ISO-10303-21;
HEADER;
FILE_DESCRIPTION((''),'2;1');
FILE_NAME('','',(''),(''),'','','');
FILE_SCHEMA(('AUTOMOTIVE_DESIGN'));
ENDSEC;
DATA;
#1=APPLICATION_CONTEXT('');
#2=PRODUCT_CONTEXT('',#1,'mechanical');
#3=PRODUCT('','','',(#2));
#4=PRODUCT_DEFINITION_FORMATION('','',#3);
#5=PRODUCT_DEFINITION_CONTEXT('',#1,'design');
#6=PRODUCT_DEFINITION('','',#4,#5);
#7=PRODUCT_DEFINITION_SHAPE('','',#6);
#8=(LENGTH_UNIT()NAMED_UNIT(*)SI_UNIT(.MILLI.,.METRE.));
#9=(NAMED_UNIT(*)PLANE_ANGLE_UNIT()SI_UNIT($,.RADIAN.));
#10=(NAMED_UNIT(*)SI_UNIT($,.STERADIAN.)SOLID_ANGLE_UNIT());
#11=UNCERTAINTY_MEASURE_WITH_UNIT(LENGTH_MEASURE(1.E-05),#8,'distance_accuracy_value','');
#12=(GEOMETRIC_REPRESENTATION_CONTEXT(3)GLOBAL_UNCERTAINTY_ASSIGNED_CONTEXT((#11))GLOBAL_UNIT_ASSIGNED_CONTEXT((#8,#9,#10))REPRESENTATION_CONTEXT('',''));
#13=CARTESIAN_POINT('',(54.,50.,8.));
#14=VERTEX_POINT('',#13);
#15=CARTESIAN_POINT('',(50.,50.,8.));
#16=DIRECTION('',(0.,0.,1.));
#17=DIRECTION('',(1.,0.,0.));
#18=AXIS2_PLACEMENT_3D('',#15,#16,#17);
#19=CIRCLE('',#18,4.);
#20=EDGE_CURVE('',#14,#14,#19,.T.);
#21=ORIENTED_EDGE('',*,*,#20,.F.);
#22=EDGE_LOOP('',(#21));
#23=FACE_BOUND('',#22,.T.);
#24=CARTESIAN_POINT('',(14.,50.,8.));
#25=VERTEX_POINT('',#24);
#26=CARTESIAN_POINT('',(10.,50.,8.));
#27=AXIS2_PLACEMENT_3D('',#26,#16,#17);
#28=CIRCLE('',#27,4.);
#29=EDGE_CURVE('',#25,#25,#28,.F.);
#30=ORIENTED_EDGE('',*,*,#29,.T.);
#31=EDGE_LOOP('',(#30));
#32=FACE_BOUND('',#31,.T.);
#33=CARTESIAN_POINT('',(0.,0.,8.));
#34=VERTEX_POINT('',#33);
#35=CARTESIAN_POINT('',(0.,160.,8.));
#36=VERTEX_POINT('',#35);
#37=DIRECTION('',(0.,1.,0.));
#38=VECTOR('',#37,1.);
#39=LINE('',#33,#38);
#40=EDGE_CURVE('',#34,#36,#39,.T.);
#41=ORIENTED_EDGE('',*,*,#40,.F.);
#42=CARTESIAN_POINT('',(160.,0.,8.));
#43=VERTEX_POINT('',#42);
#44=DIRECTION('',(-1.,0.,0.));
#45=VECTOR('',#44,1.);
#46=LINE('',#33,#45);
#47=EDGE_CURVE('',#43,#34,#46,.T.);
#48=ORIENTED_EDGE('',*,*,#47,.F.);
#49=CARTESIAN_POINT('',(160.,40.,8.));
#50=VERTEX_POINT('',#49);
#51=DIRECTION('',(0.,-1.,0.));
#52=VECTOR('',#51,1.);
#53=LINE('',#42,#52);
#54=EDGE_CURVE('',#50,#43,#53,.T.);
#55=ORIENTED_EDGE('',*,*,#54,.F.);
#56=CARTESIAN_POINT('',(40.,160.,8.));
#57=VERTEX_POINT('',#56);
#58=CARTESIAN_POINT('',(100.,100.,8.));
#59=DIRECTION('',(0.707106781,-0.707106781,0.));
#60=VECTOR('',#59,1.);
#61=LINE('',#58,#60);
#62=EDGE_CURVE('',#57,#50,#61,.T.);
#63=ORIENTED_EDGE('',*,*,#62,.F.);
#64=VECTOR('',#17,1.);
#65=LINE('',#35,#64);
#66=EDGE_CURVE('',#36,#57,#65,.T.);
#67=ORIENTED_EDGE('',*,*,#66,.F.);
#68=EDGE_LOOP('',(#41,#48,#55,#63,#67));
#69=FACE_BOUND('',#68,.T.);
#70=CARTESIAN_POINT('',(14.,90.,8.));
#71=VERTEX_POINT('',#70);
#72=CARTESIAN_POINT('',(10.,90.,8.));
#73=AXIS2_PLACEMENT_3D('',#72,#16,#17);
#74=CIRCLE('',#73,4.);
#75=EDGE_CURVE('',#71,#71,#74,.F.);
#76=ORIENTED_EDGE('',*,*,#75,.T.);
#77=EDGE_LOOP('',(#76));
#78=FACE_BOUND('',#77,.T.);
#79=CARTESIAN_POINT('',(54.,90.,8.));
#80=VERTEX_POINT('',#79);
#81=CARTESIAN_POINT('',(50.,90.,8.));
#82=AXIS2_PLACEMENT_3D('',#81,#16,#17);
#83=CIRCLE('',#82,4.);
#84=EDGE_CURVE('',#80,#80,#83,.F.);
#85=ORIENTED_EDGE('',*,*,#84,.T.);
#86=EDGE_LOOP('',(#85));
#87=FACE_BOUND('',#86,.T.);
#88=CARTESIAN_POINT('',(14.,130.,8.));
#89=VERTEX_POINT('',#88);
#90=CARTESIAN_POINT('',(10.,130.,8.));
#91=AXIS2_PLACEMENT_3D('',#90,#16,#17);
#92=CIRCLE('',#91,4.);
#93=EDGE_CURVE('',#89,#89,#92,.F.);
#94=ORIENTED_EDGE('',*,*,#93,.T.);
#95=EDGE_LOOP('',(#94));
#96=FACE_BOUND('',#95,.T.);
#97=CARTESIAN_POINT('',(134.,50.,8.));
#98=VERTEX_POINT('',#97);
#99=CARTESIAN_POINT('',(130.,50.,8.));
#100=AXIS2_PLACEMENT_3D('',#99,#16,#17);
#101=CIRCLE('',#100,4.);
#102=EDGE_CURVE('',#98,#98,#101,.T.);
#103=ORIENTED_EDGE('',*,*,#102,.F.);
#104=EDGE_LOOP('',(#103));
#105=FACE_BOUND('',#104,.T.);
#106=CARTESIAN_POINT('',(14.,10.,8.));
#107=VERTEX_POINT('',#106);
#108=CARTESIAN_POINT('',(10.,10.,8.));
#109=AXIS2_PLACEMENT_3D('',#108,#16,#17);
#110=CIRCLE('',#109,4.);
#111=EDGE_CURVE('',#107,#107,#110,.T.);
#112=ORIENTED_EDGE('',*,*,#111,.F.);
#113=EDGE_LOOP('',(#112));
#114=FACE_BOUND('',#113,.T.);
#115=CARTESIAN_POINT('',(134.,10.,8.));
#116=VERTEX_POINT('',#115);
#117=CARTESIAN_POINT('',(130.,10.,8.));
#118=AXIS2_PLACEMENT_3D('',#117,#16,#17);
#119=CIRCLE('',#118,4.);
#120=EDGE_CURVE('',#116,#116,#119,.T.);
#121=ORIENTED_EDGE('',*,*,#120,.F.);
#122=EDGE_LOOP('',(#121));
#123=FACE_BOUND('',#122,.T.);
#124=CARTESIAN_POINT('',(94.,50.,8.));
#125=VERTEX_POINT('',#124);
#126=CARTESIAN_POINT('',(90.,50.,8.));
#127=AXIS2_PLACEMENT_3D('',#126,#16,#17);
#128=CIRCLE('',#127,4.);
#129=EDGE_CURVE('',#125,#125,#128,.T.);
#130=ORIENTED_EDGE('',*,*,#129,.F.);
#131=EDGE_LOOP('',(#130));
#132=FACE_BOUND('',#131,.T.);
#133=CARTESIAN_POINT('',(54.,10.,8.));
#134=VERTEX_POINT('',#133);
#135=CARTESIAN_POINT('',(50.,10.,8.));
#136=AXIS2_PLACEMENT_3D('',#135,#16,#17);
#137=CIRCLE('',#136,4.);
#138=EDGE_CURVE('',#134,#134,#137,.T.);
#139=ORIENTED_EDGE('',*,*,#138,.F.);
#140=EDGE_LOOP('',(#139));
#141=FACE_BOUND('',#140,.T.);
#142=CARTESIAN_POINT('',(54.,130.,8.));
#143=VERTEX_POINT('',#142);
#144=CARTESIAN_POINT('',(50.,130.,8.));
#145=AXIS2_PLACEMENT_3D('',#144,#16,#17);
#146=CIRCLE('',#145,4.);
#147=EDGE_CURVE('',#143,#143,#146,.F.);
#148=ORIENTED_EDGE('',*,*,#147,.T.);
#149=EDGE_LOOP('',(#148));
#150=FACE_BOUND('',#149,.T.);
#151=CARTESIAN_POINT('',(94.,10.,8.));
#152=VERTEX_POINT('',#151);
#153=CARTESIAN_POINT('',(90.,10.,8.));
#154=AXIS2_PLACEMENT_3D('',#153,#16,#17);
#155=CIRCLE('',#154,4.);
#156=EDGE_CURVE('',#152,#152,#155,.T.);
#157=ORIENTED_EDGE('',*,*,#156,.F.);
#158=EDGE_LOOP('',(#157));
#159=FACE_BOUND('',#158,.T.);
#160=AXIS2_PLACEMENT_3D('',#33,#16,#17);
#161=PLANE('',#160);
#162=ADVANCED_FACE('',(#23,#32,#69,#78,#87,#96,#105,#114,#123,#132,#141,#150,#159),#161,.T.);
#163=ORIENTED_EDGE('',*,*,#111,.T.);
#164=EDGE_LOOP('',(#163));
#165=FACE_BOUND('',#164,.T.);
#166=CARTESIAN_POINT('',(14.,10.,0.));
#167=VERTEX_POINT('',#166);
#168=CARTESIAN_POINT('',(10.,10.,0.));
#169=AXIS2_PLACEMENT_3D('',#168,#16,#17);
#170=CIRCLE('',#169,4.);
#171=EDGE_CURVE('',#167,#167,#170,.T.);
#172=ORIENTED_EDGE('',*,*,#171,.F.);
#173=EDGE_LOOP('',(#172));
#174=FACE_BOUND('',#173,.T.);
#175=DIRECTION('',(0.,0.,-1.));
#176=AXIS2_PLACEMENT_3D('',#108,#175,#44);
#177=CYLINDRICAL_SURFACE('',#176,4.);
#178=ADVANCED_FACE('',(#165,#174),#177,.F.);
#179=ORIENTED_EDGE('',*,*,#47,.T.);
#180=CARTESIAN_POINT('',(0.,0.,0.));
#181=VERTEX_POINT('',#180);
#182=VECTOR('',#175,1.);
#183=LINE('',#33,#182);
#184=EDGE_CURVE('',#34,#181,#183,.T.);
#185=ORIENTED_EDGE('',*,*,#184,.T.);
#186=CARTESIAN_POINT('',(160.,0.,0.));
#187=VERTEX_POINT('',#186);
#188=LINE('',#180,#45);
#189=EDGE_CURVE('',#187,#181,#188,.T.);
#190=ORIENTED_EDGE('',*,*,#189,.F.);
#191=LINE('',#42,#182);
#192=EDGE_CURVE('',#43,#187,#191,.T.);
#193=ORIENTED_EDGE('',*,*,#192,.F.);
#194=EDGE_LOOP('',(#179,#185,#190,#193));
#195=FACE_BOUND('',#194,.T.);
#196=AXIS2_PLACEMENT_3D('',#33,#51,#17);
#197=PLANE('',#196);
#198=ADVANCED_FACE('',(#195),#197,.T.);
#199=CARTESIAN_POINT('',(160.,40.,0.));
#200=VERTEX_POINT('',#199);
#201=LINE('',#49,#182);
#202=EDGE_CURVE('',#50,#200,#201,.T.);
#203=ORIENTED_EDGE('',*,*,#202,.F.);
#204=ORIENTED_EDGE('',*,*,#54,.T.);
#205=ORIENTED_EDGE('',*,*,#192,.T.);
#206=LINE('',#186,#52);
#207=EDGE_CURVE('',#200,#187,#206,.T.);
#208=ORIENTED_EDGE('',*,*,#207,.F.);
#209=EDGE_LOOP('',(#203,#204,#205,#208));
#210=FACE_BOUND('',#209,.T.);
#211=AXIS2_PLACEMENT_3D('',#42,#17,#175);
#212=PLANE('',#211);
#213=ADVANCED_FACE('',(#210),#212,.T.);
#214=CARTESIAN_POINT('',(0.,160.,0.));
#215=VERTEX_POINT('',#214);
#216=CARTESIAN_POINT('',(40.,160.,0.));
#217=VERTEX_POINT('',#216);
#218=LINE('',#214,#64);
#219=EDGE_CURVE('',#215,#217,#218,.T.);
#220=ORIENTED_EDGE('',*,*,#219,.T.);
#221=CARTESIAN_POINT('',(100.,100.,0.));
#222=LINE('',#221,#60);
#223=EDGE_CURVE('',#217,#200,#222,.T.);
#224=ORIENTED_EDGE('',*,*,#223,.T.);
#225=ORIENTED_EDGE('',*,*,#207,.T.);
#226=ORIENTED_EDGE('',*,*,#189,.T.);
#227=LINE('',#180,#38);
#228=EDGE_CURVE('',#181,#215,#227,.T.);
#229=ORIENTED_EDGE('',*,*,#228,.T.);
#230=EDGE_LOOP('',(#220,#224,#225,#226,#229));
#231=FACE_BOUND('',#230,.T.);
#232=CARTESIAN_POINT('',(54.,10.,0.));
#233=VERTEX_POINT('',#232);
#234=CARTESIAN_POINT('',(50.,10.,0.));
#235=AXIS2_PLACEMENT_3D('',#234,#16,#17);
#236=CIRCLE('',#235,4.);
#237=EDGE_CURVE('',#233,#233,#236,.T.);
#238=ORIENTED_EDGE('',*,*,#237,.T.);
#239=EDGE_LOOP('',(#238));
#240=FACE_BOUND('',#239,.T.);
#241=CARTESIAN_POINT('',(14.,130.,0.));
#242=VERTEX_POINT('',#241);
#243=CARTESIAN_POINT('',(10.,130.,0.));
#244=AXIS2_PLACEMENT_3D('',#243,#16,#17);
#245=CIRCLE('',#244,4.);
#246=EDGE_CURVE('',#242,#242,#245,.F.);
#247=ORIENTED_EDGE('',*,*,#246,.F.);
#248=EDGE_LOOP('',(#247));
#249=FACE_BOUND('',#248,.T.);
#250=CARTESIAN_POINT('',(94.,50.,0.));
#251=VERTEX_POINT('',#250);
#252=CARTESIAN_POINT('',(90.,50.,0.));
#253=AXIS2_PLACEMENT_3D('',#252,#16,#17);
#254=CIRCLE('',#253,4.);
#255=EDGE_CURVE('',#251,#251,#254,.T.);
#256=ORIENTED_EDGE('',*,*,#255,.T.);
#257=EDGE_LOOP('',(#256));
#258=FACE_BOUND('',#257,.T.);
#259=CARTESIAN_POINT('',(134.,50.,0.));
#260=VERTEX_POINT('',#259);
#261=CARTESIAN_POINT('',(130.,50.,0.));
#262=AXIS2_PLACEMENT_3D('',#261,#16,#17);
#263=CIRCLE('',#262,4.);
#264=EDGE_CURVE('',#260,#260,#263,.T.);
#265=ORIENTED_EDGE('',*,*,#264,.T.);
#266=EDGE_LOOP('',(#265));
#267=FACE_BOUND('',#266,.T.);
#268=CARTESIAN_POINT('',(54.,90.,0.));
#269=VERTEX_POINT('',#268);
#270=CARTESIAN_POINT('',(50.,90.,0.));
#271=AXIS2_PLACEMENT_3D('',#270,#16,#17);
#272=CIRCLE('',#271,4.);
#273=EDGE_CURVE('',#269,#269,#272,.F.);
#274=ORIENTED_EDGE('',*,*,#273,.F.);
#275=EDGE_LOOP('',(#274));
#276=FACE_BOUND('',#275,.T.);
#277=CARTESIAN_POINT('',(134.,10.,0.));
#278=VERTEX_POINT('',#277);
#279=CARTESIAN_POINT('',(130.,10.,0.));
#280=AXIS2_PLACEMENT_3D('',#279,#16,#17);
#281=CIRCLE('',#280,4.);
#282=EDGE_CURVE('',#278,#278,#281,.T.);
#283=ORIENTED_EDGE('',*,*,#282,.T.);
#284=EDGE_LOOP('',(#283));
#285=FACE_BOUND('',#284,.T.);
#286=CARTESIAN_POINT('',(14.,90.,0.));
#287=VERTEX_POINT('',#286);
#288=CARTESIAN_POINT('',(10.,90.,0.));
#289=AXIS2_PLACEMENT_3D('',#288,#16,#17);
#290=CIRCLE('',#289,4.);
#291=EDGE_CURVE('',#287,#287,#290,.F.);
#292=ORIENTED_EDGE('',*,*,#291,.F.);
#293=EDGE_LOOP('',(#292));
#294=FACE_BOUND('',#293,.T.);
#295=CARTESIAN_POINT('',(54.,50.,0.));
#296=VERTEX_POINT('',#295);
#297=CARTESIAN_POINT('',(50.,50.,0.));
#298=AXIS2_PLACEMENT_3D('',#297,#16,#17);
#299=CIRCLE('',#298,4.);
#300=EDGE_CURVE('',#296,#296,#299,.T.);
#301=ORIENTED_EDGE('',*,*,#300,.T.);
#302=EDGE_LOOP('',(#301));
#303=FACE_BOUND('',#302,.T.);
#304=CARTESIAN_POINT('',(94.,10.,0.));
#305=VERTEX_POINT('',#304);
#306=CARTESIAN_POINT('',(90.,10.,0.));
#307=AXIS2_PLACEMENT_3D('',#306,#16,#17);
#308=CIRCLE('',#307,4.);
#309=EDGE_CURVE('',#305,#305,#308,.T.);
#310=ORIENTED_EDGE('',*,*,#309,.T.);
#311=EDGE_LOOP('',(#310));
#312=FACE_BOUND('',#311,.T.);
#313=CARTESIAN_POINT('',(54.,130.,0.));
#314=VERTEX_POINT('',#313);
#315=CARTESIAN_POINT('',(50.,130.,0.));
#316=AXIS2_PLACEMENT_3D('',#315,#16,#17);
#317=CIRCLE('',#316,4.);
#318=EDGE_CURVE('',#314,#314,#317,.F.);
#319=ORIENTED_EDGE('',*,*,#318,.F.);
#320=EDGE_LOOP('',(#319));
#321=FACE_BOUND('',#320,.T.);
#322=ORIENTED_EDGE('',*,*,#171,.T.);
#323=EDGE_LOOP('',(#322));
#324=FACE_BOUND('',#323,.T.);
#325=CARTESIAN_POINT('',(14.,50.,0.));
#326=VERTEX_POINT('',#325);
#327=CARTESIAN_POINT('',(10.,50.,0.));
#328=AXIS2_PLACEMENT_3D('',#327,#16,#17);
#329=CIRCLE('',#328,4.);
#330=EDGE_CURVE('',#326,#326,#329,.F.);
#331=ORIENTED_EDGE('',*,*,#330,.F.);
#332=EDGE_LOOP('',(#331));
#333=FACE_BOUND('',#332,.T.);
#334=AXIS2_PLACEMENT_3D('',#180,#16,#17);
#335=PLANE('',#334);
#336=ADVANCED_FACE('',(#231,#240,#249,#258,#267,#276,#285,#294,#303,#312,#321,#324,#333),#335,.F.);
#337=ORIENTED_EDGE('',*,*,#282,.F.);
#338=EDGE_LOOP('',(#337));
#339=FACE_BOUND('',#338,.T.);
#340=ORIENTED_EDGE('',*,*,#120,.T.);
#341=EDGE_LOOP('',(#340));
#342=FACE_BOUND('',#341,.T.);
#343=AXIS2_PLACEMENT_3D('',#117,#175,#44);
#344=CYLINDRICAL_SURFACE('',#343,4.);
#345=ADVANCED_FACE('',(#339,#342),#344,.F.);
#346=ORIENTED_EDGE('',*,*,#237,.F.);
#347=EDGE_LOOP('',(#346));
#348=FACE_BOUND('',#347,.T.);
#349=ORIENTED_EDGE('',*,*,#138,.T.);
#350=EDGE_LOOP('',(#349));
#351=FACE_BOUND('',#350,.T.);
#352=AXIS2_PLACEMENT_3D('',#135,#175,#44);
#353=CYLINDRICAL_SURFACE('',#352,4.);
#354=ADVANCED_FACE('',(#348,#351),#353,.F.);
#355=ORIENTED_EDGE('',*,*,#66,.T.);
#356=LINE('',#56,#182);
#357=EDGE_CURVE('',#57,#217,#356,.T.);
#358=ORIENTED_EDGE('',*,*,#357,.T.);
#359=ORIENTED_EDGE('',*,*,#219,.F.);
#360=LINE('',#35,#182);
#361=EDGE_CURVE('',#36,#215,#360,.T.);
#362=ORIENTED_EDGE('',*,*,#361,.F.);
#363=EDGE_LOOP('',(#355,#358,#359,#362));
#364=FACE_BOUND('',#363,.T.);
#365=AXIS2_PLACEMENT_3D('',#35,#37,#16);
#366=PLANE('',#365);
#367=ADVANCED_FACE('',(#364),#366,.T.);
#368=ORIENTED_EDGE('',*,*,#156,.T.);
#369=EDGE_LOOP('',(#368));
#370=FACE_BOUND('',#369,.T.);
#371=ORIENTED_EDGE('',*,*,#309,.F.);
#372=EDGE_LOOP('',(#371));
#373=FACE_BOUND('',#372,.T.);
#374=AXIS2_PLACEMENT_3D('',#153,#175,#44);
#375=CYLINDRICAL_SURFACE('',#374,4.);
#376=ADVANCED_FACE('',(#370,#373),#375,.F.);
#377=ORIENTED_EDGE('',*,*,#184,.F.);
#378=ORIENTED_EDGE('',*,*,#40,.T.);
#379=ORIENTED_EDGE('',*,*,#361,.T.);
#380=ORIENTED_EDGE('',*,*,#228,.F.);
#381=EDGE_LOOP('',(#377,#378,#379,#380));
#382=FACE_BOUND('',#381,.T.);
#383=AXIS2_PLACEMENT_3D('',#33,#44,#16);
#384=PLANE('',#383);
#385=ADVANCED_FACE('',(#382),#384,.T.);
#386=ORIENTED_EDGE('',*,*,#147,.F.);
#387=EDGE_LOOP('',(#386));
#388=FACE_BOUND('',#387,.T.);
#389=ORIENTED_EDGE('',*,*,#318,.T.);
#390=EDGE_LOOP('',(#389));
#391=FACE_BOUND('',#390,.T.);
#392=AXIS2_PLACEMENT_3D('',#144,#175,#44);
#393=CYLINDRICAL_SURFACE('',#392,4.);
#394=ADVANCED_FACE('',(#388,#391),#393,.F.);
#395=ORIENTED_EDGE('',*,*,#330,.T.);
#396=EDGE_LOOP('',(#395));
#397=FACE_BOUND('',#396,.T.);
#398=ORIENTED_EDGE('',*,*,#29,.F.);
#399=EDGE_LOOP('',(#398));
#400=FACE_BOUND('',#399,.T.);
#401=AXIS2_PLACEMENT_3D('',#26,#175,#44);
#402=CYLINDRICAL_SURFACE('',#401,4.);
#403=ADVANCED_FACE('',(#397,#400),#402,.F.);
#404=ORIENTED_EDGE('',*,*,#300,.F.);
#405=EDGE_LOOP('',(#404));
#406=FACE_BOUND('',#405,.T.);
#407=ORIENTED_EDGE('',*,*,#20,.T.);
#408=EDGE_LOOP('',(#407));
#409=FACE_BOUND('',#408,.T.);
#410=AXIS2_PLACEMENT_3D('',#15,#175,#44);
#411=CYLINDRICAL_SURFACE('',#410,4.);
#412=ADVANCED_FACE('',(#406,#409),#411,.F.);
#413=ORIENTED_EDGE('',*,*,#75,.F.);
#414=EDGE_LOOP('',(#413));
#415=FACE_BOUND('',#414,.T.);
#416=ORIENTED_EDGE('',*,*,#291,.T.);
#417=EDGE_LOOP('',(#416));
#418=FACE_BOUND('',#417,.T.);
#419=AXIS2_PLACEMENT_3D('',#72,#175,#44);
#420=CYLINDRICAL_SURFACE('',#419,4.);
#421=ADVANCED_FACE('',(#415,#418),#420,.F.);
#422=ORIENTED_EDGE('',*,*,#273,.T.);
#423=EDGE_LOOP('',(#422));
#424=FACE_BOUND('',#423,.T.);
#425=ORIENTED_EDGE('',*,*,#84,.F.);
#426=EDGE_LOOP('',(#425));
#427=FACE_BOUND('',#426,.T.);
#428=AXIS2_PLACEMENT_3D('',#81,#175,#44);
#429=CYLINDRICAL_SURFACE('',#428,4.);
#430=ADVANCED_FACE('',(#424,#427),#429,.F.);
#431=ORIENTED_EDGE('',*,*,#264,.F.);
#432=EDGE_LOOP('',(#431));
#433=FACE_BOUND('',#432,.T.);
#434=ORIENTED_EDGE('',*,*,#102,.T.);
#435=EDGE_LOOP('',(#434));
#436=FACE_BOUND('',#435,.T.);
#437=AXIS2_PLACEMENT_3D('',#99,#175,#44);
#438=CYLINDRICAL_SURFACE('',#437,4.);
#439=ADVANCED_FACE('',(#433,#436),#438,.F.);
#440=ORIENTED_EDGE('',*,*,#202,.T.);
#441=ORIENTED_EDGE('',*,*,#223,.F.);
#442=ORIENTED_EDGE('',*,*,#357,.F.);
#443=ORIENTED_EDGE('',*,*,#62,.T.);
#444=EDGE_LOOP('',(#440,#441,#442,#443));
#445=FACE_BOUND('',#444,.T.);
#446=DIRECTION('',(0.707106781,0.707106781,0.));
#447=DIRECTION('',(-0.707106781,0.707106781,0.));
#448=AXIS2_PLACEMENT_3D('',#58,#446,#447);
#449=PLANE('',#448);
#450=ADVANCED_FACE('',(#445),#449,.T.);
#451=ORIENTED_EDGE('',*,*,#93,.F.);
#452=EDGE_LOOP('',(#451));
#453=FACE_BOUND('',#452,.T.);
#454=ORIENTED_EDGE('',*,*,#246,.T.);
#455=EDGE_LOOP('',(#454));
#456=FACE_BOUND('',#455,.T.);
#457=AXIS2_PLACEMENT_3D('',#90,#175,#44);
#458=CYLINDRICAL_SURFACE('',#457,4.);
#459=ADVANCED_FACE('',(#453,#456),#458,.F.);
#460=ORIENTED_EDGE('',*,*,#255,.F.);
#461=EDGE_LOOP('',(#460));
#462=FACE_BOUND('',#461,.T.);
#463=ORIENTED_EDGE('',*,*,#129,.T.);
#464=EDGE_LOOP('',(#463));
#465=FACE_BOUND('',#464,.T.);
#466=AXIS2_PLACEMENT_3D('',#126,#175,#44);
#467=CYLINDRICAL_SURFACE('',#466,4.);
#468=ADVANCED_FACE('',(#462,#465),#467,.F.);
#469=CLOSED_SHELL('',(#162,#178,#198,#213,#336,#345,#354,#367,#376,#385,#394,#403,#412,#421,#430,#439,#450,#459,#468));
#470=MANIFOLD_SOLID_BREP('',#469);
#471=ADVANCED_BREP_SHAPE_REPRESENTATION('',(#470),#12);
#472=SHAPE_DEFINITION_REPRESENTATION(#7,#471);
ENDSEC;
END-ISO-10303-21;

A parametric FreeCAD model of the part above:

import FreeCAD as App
import Part
import Sketcher
Q = App.Units.Quantity

doc = App.newDocument("Part")
body = doc.addObject("PartDesign::Body", "Body")

# Sketch on XY plane
sketch1 = body.newObject("Sketcher::SketchObject", "Sketch")
sketch1.AttachmentSupport = (doc.getObject("XY_Plane"), [""])
sketch1.MapMode = "FlatFace"
sketch1.addGeometry([
    Part.LineSegment(App.Vector(0, 160, 0), App.Vector(0, 0, 0)),  # 0
    Part.LineSegment(App.Vector(0, 0, 0), App.Vector(160, 0, 0)),  # 1
    Part.LineSegment(App.Vector(160, 0, 0), App.Vector(160, 40, 0)),  # 2
    Part.LineSegment(App.Vector(160, 40, 0), App.Vector(40, 160, 0)),  # 3
    Part.LineSegment(App.Vector(40, 160, 0), App.Vector(0, 160, 0)),  # 4
    Part.Circle(App.Vector(130, 10, 0), App.Vector(0, 0, 1), 4),  # 5
    Part.Circle(App.Vector(90, 10, 0), App.Vector(0, 0, 1), 4),  # 6
    Part.Circle(App.Vector(130, 50, 0), App.Vector(0, 0, 1), 4),  # 7
    Part.Circle(App.Vector(90, 50, 0), App.Vector(0, 0, 1), 4),  # 8
    Part.Circle(App.Vector(50, 10, 0), App.Vector(0, 0, 1), 4),  # 9
    Part.Circle(App.Vector(10, 10, 0), App.Vector(0, 0, 1), 4),  # 10
    Part.Circle(App.Vector(50, 50, 0), App.Vector(0, 0, 1), 4),  # 11
    Part.Circle(App.Vector(10, 50, 0), App.Vector(0, 0, 1), 4),  # 12
    Part.Circle(App.Vector(50, 90, 0), App.Vector(0, 0, 1), 4),  # 13
    Part.Circle(App.Vector(10, 90, 0), App.Vector(0, 0, 1), 4),  # 14
    Part.Circle(App.Vector(50, 130, 0), App.Vector(0, 0, 1), 4),  # 15
    Part.Circle(App.Vector(10, 130, 0), App.Vector(0, 0, 1), 4),  # 16
], False)
sketch1.addConstraint([
    Sketcher.Constraint("Coincident", 0, 2, 1, 1),
    Sketcher.Constraint("Coincident", 1, 2, 2, 1),
    Sketcher.Constraint("Coincident", 2, 2, 3, 1),
    Sketcher.Constraint("Coincident", 3, 2, 4, 1),
    Sketcher.Constraint("Coincident", 4, 2, 0, 1),
    Sketcher.Constraint("Vertical", 0),
    Sketcher.Constraint("Horizontal", 1),
    Sketcher.Constraint("Vertical", 2),
    Sketcher.Constraint("Horizontal", 4),
    Sketcher.Constraint("Coincident", 0, 2, -1, 1),
    Sketcher.Constraint("Equal", 5, 6),
    Sketcher.Constraint("Equal", 6, 7),
    Sketcher.Constraint("Equal", 7, 8),
    Sketcher.Constraint("Equal", 8, 9),
    Sketcher.Constraint("Equal", 9, 10),
    Sketcher.Constraint("Equal", 10, 11),
    Sketcher.Constraint("Equal", 11, 12),
    Sketcher.Constraint("Equal", 12, 13),
    Sketcher.Constraint("Equal", 13, 14),
    Sketcher.Constraint("Equal", 14, 15),
    Sketcher.Constraint("Equal", 15, 16),
    Sketcher.Constraint("Horizontal", 5, 3, 6, 3),
    Sketcher.Constraint("Horizontal", 7, 3, 8, 3),
    Sketcher.Constraint("Horizontal", 6, 3, 9, 3),
    Sketcher.Constraint("Horizontal", 9, 3, 10, 3),
    Sketcher.Constraint("Horizontal", 8, 3, 11, 3),
    Sketcher.Constraint("Horizontal", 11, 3, 12, 3),
    Sketcher.Constraint("Horizontal", 13, 3, 14, 3),
    Sketcher.Constraint("Horizontal", 15, 3, 16, 3),
    Sketcher.Constraint("Vertical", 5, 3, 7, 3),
    Sketcher.Constraint("Vertical", 6, 3, 8, 3),
    Sketcher.Constraint("Vertical", 9, 3, 11, 3),
    Sketcher.Constraint("Vertical", 10, 3, 12, 3),
    Sketcher.Constraint("Vertical", 11, 3, 13, 3),
    Sketcher.Constraint("Vertical", 12, 3, 14, 3),
    Sketcher.Constraint("Vertical", 13, 3, 15, 3),
    Sketcher.Constraint("Vertical", 14, 3, 16, 3),
    Sketcher.Constraint("Equal", 1, 0),
    Sketcher.Constraint("Equal", 4, 2),
    Sketcher.Constraint("Diameter", 5, Q("8 mm")),
    Sketcher.Constraint("DistanceX", 1, 1, 1, 2, Q("160 mm")),
    Sketcher.Constraint("DistanceX", 4, 2, 4, 1, Q("40 mm")),
    Sketcher.Constraint("DistanceX", -1, 1, 5, 3, Q("130 mm")),
    Sketcher.Constraint("DistanceY", -1, 1, 5, 3, Q("10 mm")),
    Sketcher.Constraint("DistanceX", -1, 1, 6, 3, Q("90 mm")),
    Sketcher.Constraint("DistanceY", -1, 1, 7, 3, Q("50 mm")),
    Sketcher.Constraint("DistanceX", -1, 1, 9, 3, Q("50 mm")),
    Sketcher.Constraint("DistanceX", -1, 1, 10, 3, Q("10 mm")),
    Sketcher.Constraint("DistanceY", -1, 1, 13, 3, Q("90 mm")),
    Sketcher.Constraint("DistanceY", -1, 1, 15, 3, Q("130 mm")),
])
pad1 = body.newObject("PartDesign::Pad", "Pad")
pad1.Profile = sketch1
pad1.Length = 8

doc.recompute()
